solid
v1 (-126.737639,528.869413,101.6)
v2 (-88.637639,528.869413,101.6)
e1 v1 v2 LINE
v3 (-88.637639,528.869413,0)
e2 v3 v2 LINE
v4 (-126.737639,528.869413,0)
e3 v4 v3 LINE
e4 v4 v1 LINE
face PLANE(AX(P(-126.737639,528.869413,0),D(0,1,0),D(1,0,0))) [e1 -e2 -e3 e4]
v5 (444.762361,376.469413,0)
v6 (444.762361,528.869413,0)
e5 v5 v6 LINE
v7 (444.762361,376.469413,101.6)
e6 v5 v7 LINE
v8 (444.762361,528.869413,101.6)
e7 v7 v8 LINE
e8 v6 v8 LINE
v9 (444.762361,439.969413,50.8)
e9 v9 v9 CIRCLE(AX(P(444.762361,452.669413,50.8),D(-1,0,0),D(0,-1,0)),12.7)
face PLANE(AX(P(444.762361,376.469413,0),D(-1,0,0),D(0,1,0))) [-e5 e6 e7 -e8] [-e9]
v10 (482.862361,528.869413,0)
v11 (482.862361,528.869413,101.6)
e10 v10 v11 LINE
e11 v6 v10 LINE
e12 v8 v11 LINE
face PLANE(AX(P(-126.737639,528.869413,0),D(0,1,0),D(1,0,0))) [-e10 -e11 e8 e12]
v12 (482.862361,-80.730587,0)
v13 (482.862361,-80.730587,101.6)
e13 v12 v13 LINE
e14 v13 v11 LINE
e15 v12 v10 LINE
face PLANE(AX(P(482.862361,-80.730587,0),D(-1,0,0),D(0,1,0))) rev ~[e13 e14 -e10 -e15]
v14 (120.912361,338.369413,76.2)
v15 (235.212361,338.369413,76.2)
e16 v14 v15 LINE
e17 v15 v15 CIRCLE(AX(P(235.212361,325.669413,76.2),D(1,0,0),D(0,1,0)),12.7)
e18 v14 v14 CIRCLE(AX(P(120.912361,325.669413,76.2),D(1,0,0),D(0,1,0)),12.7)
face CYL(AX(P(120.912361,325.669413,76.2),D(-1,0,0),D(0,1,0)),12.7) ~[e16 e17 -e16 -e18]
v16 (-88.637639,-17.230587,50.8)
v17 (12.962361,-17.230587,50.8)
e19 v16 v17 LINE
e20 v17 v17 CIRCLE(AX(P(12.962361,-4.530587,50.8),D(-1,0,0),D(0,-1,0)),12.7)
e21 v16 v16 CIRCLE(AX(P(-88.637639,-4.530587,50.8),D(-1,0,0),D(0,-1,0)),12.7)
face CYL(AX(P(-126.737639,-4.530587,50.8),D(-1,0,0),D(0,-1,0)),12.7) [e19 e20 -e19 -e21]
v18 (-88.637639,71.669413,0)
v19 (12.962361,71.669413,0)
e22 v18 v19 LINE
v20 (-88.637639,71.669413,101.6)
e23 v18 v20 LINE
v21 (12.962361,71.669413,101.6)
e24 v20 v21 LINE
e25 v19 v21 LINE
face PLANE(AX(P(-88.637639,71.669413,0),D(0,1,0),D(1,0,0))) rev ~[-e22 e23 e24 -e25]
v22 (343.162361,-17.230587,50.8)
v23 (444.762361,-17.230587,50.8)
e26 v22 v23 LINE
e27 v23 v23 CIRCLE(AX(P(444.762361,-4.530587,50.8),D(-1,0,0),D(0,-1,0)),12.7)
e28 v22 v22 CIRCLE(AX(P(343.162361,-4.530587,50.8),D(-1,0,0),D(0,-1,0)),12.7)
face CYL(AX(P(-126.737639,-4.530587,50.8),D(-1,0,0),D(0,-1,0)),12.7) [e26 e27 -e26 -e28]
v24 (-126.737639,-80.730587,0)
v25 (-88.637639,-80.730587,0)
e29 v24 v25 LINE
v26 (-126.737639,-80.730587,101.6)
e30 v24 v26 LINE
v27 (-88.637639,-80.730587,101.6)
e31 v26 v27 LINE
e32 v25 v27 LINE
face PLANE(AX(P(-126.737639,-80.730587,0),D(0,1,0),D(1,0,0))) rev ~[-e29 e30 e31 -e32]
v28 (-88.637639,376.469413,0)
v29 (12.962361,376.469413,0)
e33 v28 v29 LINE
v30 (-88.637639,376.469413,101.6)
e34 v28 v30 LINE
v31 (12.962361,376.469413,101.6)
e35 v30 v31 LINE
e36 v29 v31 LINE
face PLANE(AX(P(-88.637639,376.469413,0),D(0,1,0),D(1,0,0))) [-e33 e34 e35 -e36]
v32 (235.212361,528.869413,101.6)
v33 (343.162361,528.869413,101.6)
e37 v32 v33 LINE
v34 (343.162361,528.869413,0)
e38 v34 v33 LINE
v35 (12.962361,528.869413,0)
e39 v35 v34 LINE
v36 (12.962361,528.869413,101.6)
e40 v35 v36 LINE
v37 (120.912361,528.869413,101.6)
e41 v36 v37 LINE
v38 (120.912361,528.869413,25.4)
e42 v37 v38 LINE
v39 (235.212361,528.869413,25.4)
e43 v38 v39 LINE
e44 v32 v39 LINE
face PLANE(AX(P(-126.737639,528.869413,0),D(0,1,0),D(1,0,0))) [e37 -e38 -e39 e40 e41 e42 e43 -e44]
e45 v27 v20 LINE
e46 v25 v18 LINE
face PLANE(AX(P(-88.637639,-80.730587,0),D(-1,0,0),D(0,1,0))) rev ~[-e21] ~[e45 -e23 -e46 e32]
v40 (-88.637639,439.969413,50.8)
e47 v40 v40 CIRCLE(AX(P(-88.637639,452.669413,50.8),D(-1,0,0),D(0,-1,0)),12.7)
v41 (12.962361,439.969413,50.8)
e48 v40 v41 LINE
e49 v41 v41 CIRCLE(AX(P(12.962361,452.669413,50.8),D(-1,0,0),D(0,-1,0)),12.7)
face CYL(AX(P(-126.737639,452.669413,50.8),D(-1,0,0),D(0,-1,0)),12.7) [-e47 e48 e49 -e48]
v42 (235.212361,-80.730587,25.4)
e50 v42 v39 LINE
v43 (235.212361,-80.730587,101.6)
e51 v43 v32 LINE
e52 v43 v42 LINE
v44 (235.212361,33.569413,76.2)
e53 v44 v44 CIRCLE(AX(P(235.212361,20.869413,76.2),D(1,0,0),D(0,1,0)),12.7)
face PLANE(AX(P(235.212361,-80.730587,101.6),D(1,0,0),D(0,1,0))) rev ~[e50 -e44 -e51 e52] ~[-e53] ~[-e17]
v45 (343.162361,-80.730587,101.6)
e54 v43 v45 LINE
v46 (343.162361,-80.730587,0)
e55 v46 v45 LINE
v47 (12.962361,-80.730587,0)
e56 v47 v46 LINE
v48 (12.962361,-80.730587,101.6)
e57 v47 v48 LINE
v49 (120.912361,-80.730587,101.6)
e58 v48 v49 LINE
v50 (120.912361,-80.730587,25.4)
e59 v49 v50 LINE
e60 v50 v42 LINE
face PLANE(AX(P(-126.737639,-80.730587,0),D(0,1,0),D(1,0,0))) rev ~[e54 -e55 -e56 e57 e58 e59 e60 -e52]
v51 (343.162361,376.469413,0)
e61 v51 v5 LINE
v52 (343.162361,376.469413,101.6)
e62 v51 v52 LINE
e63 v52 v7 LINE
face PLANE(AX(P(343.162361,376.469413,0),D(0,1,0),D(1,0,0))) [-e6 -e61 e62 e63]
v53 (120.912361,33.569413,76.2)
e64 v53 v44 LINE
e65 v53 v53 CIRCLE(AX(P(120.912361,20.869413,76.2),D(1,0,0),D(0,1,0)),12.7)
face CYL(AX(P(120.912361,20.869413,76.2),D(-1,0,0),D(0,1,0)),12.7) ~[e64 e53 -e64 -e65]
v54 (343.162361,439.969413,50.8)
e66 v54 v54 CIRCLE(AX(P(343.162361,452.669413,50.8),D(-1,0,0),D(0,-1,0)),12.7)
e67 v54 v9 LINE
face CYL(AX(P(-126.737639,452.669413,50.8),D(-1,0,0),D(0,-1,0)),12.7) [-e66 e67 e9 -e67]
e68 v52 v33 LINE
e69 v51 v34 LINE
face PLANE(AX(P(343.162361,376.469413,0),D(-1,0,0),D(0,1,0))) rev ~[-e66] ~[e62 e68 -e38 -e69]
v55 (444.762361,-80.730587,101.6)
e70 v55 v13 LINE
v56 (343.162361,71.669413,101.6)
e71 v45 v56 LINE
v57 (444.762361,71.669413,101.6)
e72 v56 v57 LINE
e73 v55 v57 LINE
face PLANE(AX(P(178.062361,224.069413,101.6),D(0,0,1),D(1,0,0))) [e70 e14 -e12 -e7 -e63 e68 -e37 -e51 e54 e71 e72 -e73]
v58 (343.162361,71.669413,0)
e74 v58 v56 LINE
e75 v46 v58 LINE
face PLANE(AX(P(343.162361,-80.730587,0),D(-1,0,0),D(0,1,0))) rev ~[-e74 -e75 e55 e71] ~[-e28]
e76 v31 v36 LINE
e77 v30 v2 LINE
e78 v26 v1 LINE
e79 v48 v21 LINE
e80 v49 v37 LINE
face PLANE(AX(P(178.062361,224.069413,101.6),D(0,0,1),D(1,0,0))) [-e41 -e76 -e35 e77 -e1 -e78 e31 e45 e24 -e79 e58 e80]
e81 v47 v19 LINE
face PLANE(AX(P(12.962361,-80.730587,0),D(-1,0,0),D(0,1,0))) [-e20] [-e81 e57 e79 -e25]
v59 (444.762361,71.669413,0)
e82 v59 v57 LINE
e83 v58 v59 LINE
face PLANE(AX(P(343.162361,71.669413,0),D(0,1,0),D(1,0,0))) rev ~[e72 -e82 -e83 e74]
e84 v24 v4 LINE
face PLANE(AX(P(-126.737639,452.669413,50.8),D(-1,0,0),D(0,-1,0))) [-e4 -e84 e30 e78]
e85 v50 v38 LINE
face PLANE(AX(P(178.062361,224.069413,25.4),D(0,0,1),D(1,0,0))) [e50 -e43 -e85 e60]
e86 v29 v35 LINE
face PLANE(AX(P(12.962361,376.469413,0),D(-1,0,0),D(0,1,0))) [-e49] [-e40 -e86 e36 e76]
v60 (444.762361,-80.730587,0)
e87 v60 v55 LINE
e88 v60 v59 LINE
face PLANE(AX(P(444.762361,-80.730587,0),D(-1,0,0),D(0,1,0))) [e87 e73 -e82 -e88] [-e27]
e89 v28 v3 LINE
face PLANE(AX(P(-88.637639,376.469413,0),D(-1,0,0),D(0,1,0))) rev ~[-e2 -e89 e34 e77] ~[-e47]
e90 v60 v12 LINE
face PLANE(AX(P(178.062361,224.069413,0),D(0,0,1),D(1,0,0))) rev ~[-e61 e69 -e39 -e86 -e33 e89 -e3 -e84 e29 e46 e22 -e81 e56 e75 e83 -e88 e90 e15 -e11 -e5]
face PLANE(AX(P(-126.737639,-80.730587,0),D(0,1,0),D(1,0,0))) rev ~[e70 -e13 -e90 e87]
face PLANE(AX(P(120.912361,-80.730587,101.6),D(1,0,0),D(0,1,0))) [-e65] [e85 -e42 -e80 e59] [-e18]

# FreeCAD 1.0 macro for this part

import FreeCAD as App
import Part
import Sketcher

V = App.Vector
Q = App.Units.Quantity


def add_polygon(sketch, points):
    """Adds a closed chain of lines whose ends are joined by coincident constraints."""
    first, n = sketch.GeometryCount, len(points)
    for a, b in zip(points, points[1:] + points[:1]):
        sketch.addGeometry(Part.LineSegment(App.Vector(*a, 0), App.Vector(*b, 0)), False)
    for i in range(n):
        sketch.addConstraint(Sketcher.Constraint("Coincident", first + i, 2, first + (i + 1) % n, 1))

doc = App.newDocument("Part")
body = doc.addObject("PartDesign::Body", "Body")

sketch1 = body.newObject("Sketcher::SketchObject", "Sketch")
sketch1.AttachmentSupport = (doc.getObject("XY_Plane"), [""])
sketch1.MapMode = "FlatFace"
add_polygon(sketch1, [(-126.737639, 528.869413), (-126.737639, -80.730587), (482.862361, -80.730587), (482.862361, 528.869413)])
sketch1.addConstraint([
    Sketcher.Constraint("Vertical", 0),
    Sketcher.Constraint("Horizontal", 1),
    Sketcher.Constraint("Vertical", 2),
    Sketcher.Constraint("Horizontal", 3),
    Sketcher.Constraint("Equal", 3, 0),
    Sketcher.Constraint("DistanceX", 1, 1, 1, 2, Q("24 in")),
    Sketcher.Constraint("DistanceX", 0, 2, -1, 1, 126.737639),
    Sketcher.Constraint("DistanceY", 0, 2, -1, 1, 80.730587),
])
pad1 = body.newObject("PartDesign::Pad", "Pad")
pad1.Profile = sketch1
pad1.Length = Q("4 in")

sketch2 = body.newObject("Sketcher::SketchObject", "Sketch001")
sketch2.AttachmentSupport = (doc.getObject("XY_Plane"), [""])
sketch2.MapMode = "FlatFace"
add_polygon(sketch2, [(343.162361, 71.669413), (343.162361, -80.730587), (444.762361, -80.730587), (444.762361, 71.669413)])
add_polygon(sketch2, [(-88.637639, 71.669413), (-88.637639, -80.730587), (12.962361, -80.730587), (12.962361, 71.669413)])
add_polygon(sketch2, [(-88.637639, 528.869413), (-88.637639, 376.469413), (12.962361, 376.469413), (12.962361, 528.869413)])
add_polygon(sketch2, [(343.162361, 528.869413), (343.162361, 376.469413), (444.762361, 376.469413), (444.762361, 528.869413)])
sketch2.addConstraint([
    Sketcher.Constraint("Vertical", 0),
    Sketcher.Constraint("Horizontal", 1),
    Sketcher.Constraint("Vertical", 2),
    Sketcher.Constraint("Horizontal", 3),
    Sketcher.Constraint("Vertical", 4),
    Sketcher.Constraint("Horizontal", 5),
    Sketcher.Constraint("Vertical", 6),
    Sketcher.Constraint("Horizontal", 7),
    Sketcher.Constraint("Vertical", 8),
    Sketcher.Constraint("Horizontal", 9),
    Sketcher.Constraint("Vertical", 10),
    Sketcher.Constraint("Horizontal", 11),
    Sketcher.Constraint("Vertical", 12),
    Sketcher.Constraint("Horizontal", 13),
    Sketcher.Constraint("Vertical", 14),
    Sketcher.Constraint("Horizontal", 15),
    Sketcher.Constraint("Horizontal", 1, 2, 4, 2),
    Sketcher.Constraint("Horizontal", 3, 2, 6, 2),
    Sketcher.Constraint("Horizontal", 9, 2, 12, 2),
    Sketcher.Constraint("Horizontal", 11, 2, 14, 2),
    Sketcher.Constraint("Vertical", 7, 2, 8, 2),
    Sketcher.Constraint("Vertical", 6, 2, 9, 2),
    Sketcher.Constraint("Vertical", 3, 2, 12, 2),
    Sketcher.Constraint("Vertical", 2, 2, 13, 2),
    Sketcher.Constraint("Equal", 3, 5),
    Sketcher.Constraint("Equal", 6, 8),
    Sketcher.Constraint("DistanceX", 1, 1, 1, 2, Q("4 in")),
    Sketcher.Constraint("DistanceY", 0, 2, 0, 1, Q("6 in")),
    Sketcher.Constraint("DistanceX", 4, 2, 0, 2, Q("17 in")),
    Sketcher.Constraint("DistanceY", 7, 2, 8, 2, Q("12 in")),
    Sketcher.Constraint("DistanceX", -1, 1, 0, 2, 343.162361),
    Sketcher.Constraint("DistanceY", 0, 2, -1, 1, 80.730587),
])
pocket1 = body.newObject("PartDesign::Pocket", "Pocket")
pocket1.Profile = sketch2
pocket1.Length = Q("4 in")
pocket1.Reversed = True

sketch3 = body.newObject("Sketcher::SketchObject", "Sketch002")
sketch3.AttachmentSupport = (doc.getObject("YZ_Plane"), [""])
sketch3.MapMode = "FlatFace"
sketch3.AttachmentOffset = App.Placement(V(0, 0, -126.737639), App.Rotation())
sketch3.addGeometry([
    Part.Circle(V(452.669413, 50.8, 0), V(0, 0, 1), 12.7),
    Part.Circle(V(-4.530587, 50.8, 0), V(0, 0, 1), 12.7),
], False)
sketch3.addConstraint([
    Sketcher.Constraint("Equal", 0, 1),
    Sketcher.Constraint("Horizontal", 0, 3, 1, 3),
    Sketcher.Constraint("Diameter", 0, Q("1 in")),
    Sketcher.Constraint("DistanceY", -1, 1, 0, 3, Q("2 in")),
    Sketcher.Constraint("DistanceX", 1, 3, 0, 3, Q("18 in")),
    Sketcher.Constraint("DistanceX", -1, 1, 0, 3, 452.669413),
])
pad2 = body.newObject("PartDesign::Pad", "Pad001")
pad2.Profile = sketch3
pad2.Length = Q("24 in")

sketch4 = body.newObject("Sketcher::SketchObject", "Sketch003")
sketch4.AttachmentSupport = (doc.getObject("XY_Plane"), [""])
sketch4.MapMode = "FlatFace"
sketch4.AttachmentOffset = App.Placement(V(0, 0, 4 * 25.4), App.Rotation())
add_polygon(sketch4, [(120.912361, 528.869413), (120.912361, -80.730587), (235.212361, -80.730587), (235.212361, 528.869413)])
sketch4.addConstraint([
    Sketcher.Constraint("Vertical", 0),
    Sketcher.Constraint("Horizontal", 1),
    Sketcher.Constraint("Vertical", 2),
    Sketcher.Constraint("Horizontal", 3),
    Sketcher.Constraint("DistanceY", 0, 2, 0, 1, Q("24 in")),
    Sketcher.Constraint("DistanceX", 1, 1, 1, 2, Q("4.5 in")),
    Sketcher.Constraint("DistanceX", -1, 1, 0, 2, 120.912361),
    Sketcher.Constraint("DistanceY", 0, 2, -1, 1, 80.730587),
])
pocket2 = body.newObject("PartDesign::Pocket", "Pocket001")
pocket2.Profile = sketch4
pocket2.Length = Q("3 in")

sketch5 = body.newObject("Sketcher::SketchObject", "Sketch004")
sketch5.AttachmentSupport = (doc.getObject("YZ_Plane"), [""])
sketch5.MapMode = "FlatFace"
sketch5.AttachmentOffset = App.Placement(V(0, 0, 120.912361), App.Rotation())
sketch5.addGeometry([
    Part.Circle(V(20.869413, 76.2, 0), V(0, 0, 1), 12.7),
    Part.Circle(V(325.669413, 76.2, 0), V(0, 0, 1), 12.7),
], False)
sketch5.addConstraint([
    Sketcher.Constraint("Equal", 0, 1),
    Sketcher.Constraint("Horizontal", 0, 3, 1, 3),
    Sketcher.Constraint("Diameter", 0, Q("1 in")),
    Sketcher.Constraint("DistanceY", -1, 1, 0, 3, Q("3 in")),
    Sketcher.Constraint("DistanceX", 0, 3, 1, 3, Q("12 in")),
    Sketcher.Constraint("DistanceX", -1, 1, 0, 3, 20.869413),
])
pad3 = body.newObject("PartDesign::Pad", "Pad002")
pad3.Profile = sketch5
pad3.Length = Q("4.5 in")

doc.recompute()
